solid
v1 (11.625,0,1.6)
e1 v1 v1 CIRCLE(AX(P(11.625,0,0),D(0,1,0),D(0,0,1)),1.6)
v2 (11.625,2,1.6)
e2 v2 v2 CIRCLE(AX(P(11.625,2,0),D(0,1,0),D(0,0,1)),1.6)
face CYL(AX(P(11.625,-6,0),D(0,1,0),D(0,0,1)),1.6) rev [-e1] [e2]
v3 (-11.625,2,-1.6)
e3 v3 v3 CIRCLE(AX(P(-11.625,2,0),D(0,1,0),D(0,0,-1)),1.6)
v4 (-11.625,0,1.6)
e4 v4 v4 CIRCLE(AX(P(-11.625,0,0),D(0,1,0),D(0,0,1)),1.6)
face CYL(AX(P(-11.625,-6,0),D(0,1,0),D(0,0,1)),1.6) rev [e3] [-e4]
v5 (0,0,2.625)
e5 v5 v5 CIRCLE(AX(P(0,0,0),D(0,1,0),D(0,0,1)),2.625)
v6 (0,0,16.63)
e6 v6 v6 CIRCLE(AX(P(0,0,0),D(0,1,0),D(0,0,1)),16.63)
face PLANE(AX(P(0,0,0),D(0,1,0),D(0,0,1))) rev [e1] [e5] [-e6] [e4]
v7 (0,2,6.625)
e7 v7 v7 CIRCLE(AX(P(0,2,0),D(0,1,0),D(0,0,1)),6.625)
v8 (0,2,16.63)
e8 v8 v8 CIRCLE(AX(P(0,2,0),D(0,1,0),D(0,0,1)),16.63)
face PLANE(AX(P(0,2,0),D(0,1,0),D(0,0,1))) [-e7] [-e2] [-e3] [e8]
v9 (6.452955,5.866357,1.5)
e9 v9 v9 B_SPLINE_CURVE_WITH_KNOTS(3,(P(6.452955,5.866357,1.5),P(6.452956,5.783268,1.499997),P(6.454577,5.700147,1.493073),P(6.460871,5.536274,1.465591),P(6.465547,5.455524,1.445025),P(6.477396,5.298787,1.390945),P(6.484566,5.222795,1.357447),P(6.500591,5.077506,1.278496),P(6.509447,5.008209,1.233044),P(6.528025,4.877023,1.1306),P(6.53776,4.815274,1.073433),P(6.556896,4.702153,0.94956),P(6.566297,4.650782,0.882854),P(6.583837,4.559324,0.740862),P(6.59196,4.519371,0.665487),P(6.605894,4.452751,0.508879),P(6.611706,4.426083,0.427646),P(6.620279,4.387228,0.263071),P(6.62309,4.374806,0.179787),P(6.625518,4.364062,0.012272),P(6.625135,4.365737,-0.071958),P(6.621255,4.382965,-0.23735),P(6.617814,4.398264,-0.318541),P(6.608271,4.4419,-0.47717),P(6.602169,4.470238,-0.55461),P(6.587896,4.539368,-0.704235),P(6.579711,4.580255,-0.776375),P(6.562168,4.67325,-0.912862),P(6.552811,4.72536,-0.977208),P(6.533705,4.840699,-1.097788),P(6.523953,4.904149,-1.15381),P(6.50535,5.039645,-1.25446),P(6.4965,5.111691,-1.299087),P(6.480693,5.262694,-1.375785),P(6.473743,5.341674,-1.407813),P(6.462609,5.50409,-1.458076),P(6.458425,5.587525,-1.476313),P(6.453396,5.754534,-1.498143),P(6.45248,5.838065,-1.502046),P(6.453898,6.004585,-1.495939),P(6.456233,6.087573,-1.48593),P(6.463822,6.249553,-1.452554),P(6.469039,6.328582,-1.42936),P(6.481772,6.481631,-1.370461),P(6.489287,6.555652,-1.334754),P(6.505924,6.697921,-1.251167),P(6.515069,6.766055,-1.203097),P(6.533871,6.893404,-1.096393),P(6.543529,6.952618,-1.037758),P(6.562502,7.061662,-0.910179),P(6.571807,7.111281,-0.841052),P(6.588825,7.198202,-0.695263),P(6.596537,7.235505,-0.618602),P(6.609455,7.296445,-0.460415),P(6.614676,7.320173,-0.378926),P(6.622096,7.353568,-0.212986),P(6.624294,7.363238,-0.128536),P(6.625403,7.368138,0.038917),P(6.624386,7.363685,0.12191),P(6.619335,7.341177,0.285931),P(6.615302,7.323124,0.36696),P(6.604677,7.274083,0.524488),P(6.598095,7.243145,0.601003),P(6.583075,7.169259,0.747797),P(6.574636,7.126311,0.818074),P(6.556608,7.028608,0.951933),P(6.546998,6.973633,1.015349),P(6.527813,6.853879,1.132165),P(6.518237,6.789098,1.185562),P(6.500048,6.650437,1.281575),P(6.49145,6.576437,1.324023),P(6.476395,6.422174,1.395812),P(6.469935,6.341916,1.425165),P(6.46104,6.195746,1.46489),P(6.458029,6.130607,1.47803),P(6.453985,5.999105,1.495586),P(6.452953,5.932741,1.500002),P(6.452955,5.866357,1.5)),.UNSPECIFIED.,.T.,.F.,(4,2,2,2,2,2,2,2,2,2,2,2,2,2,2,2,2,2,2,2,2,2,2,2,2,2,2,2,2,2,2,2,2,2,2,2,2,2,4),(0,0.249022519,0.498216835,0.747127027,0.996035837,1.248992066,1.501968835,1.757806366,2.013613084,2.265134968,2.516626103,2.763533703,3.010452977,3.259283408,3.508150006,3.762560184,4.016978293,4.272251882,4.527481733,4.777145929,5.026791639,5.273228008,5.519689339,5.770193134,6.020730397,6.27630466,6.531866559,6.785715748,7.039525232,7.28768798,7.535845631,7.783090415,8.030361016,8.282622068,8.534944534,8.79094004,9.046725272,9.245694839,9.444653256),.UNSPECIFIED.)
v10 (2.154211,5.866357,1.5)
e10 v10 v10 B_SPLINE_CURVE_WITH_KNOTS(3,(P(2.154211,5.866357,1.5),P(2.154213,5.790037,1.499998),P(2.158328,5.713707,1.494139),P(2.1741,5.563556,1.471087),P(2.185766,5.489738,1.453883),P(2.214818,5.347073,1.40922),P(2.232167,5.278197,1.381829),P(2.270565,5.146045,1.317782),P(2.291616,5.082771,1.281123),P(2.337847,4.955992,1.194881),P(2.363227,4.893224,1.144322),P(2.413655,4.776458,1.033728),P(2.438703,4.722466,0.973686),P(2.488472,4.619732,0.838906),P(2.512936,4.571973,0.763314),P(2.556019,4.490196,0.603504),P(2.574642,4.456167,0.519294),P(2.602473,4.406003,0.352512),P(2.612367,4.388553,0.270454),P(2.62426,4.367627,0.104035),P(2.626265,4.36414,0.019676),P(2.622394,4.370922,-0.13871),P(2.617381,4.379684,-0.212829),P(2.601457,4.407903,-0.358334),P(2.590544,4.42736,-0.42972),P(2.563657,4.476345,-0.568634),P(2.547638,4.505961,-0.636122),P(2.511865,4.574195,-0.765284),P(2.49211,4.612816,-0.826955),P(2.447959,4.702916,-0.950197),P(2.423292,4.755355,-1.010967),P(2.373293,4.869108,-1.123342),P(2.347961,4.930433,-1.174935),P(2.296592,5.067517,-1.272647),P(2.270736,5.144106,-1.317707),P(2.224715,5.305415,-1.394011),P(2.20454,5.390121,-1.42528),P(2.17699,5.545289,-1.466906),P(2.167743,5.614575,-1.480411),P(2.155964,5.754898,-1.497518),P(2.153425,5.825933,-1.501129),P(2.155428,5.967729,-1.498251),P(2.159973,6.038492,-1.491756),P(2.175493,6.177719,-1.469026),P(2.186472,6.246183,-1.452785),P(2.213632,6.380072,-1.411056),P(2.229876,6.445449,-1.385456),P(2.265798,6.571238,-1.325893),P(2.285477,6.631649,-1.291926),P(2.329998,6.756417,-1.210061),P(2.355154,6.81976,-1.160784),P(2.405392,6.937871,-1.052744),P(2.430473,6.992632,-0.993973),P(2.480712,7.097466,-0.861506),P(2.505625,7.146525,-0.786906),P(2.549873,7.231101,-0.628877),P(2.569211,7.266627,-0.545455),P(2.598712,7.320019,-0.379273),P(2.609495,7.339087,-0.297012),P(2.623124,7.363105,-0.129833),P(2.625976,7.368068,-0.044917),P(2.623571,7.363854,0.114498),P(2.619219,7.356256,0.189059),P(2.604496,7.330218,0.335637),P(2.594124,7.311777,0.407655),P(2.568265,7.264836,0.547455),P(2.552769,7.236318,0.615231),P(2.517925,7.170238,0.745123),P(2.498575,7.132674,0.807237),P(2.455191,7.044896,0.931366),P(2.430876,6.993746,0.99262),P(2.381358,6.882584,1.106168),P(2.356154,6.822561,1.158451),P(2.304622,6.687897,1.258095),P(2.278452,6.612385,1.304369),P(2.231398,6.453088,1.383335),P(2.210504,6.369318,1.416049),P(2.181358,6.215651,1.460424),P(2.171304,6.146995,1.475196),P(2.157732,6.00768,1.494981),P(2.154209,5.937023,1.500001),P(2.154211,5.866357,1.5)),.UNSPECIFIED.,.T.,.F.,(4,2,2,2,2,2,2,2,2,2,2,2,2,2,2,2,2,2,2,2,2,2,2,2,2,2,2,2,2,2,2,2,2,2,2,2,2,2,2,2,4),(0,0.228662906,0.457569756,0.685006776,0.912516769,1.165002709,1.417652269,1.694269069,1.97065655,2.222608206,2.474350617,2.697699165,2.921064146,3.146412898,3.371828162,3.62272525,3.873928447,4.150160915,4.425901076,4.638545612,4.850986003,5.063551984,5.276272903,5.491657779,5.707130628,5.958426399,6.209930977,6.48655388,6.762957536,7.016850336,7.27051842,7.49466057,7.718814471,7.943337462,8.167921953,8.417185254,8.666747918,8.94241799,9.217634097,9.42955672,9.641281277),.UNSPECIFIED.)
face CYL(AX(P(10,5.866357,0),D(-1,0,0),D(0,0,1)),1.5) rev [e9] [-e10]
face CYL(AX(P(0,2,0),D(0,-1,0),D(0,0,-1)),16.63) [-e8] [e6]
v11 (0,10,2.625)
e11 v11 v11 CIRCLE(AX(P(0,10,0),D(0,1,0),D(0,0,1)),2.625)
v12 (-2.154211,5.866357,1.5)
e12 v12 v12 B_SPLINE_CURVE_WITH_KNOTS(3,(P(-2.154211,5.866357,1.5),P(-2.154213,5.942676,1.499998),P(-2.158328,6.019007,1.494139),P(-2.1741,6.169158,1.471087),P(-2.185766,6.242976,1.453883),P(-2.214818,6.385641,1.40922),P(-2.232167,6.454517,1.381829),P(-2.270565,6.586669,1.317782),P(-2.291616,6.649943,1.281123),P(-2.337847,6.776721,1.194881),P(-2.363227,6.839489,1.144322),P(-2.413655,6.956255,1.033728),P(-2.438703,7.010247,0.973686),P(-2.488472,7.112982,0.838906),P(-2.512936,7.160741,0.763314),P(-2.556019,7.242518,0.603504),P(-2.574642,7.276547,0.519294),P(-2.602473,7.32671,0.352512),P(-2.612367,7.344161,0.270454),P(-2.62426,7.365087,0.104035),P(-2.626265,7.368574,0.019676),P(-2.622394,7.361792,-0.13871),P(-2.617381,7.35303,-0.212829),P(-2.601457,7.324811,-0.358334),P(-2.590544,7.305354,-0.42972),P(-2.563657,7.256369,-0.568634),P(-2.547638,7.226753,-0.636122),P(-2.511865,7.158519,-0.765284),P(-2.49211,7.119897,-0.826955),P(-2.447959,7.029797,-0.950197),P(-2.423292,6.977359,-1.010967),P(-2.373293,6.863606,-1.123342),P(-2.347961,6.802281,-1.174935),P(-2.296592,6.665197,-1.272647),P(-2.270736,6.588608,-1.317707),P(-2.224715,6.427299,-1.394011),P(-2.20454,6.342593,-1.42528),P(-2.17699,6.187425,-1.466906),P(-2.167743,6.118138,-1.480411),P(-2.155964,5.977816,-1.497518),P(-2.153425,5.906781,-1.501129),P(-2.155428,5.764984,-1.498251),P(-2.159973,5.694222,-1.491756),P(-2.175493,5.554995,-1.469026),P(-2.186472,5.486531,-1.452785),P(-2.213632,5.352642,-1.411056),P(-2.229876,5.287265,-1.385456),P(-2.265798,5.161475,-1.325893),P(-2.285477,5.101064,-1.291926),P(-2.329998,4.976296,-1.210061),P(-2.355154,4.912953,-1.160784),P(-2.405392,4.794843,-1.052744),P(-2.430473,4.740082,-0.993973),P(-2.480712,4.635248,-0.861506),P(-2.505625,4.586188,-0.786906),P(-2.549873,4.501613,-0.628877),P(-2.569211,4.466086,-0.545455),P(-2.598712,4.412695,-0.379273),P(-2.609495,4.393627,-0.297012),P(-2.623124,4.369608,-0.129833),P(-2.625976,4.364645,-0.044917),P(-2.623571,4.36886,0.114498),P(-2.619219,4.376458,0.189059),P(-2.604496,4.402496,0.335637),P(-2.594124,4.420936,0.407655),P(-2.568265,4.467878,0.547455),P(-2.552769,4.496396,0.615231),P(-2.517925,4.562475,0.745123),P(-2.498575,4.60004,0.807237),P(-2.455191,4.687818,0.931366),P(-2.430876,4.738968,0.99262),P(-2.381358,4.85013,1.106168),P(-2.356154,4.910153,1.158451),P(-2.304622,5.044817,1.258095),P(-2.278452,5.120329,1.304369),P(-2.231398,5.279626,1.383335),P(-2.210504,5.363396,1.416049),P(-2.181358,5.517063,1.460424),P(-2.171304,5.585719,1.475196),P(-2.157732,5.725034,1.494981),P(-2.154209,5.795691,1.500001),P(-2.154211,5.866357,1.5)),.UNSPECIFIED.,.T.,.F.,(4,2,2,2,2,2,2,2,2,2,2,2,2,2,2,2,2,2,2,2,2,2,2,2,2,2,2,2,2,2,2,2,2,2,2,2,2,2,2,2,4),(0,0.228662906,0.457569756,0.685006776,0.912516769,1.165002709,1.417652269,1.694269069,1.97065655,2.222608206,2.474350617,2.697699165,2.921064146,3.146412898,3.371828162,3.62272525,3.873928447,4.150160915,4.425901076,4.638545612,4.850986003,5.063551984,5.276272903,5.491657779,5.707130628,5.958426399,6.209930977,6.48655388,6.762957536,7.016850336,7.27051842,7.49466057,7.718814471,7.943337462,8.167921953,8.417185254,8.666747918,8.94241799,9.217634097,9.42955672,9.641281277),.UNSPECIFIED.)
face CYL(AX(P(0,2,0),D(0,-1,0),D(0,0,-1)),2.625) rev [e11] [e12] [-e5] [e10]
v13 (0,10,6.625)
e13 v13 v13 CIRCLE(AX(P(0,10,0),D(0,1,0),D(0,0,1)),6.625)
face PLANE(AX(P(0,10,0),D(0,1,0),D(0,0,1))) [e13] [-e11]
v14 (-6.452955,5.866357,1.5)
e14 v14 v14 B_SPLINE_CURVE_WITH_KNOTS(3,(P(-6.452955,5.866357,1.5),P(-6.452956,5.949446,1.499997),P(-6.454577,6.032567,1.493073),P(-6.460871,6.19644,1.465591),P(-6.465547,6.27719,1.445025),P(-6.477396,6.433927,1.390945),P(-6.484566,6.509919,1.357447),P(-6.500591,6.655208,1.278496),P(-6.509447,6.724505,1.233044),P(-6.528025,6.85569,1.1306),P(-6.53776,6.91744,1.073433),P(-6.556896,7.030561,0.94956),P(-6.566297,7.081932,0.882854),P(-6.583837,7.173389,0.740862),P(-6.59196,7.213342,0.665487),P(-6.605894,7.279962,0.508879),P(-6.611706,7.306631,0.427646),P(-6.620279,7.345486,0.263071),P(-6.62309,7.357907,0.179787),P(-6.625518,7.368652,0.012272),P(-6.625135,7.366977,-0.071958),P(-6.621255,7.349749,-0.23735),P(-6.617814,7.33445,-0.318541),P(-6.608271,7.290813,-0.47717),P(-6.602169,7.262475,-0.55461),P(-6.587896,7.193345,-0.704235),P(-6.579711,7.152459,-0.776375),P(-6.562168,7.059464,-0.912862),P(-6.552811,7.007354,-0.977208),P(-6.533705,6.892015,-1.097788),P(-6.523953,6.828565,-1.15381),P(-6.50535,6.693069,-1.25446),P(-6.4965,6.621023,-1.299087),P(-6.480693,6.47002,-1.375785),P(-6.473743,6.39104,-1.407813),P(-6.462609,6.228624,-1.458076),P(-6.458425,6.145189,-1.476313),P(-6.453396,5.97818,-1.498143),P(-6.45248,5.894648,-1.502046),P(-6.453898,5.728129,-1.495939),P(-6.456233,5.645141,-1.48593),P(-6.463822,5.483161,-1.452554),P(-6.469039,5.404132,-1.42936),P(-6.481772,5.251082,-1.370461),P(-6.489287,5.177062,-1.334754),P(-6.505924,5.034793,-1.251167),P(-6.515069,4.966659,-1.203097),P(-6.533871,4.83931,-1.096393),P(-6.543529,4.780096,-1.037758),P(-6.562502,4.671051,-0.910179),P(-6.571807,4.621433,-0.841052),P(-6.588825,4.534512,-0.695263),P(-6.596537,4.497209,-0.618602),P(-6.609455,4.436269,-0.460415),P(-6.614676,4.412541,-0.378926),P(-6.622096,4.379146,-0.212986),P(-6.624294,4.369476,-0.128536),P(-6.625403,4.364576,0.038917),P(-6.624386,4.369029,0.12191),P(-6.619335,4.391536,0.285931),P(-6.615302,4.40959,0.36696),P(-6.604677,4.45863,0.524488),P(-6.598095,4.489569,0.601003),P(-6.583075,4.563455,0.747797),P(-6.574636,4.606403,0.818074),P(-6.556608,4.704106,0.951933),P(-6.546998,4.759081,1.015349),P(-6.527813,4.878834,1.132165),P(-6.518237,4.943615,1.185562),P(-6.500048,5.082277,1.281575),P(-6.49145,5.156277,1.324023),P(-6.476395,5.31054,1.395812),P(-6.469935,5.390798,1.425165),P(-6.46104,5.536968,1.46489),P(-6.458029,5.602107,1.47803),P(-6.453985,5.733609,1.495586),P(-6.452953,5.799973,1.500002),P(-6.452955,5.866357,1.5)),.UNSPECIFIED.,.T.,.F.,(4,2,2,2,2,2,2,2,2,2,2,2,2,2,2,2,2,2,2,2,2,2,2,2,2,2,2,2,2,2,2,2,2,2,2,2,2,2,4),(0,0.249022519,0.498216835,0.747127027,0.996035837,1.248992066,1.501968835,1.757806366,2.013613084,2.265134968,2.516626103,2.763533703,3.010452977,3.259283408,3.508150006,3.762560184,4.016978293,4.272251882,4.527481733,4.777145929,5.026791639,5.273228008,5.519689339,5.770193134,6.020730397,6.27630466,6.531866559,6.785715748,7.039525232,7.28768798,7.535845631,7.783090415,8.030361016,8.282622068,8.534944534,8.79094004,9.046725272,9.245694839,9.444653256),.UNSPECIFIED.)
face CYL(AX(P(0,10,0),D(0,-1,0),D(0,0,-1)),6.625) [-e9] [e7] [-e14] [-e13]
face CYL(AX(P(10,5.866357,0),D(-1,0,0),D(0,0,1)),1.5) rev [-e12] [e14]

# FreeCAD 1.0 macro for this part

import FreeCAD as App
import Part
import Sketcher
from FreeCAD import Vector
Q = App.Units.Quantity

doc = App.newDocument("Part")
body = doc.addObject("PartDesign::Body", "Body")

# Sketch on XZ plane
sketch1 = doc.addObject("Sketcher::SketchObject", "Sketch")
body.addObject(sketch1)
sketch1.AttachmentSupport = (doc.XZ_Plane, [""])
sketch1.MapMode = "FlatFace"
sketch1.addGeometry(Part.Circle(Vector(0, 0, 0), Vector(0, 0, 1), 16.63), False)
sketch1.addGeometry(Part.Circle(Vector(0, 0, 0), Vector(0, 0, 1), 2.625), False)
sketch1.addConstraint(Sketcher.Constraint("Coincident", 0, 3, -1, 1))
sketch1.addConstraint(Sketcher.Constraint("Coincident", 1, 3, -1, 1))
sketch1.addConstraint(Sketcher.Constraint("Diameter", 0, Q("33.26 mm")))
sketch1.addConstraint(Sketcher.Constraint("Diameter", 1, Q("5.25 mm")))
pad1 = doc.addObject("PartDesign::Pad", "Pad")
body.addObject(pad1)
pad1.Profile = sketch1
pad1.Length = 2
pad1.Reversed = True

# Sketch on XZ plane
sketch2 = doc.addObject("Sketcher::SketchObject", "Sketch001")
body.addObject(sketch2)
sketch2.AttachmentSupport = (doc.XZ_Plane, [""])
sketch2.MapMode = "FlatFace"
sketch2.AttachmentOffset = App.Placement(Vector(0, 0, -2), App.Rotation())
sketch2.addGeometry(Part.Circle(Vector(0, 0, 0), Vector(0, 0, 1), 6.625), False)
sketch2.addGeometry(Part.Circle(Vector(0, 0, 0), Vector(0, 0, 1), 2.625), False)
sketch2.addConstraint(Sketcher.Constraint("Coincident", 0, 3, -1, 1))
sketch2.addConstraint(Sketcher.Constraint("Coincident", 1, 3, -1, 1))
sketch2.addConstraint(Sketcher.Constraint("Diameter", 0, Q("13.25 mm")))
sketch2.addConstraint(Sketcher.Constraint("Diameter", 1, Q("5.25 mm")))
pad2 = doc.addObject("PartDesign::Pad", "Pad001")
body.addObject(pad2)
pad2.Profile = sketch2
pad2.Length = 8
pad2.Reversed = True

# Sketch on XZ plane
sketch3 = doc.addObject("Sketcher::SketchObject", "Sketch002")
body.addObject(sketch3)
sketch3.AttachmentSupport = (doc.XZ_Plane, [""])
sketch3.MapMode = "FlatFace"
sketch3.AttachmentOffset = App.Placement(Vector(0, 0, -2), App.Rotation())
sketch3.addGeometry(Part.Circle(Vector(11.625, 0, 0), Vector(0, 0, 1), 1.6), False)
sketch3.addConstraint(Sketcher.Constraint("PointOnObject", 0, 3, -1))
sketch3.addConstraint(Sketcher.Constraint("Diameter", 0, Q("3.2 mm")))
sketch3.addConstraint(Sketcher.Constraint("DistanceX", -1, 1, 0, 3, Q("11.625 mm")))
pocket1 = doc.addObject("PartDesign::Pocket", "Pocket")
body.addObject(pocket1)
pocket1.Profile = sketch3
pocket1.Length = 8
pocket1.Reversed = True
doc.recompute()

polarpattern = doc.addObject("PartDesign::PolarPattern", "PolarPattern")
body.addObject(polarpattern)
polarpattern.Originals = [pocket1]
polarpattern.Axis = (doc.Y_Axis, [""])
polarpattern.Angle = 360
polarpattern.Occurrences = 2
body.Tip = polarpattern

# Sketch on YZ plane
sketch4 = doc.addObject("Sketcher::SketchObject", "Sketch003")
body.addObject(sketch4)
sketch4.AttachmentSupport = (doc.YZ_Plane, [""])
sketch4.MapMode = "FlatFace"
sketch4.addGeometry(Part.Circle(Vector(5.866357, 0, 0), Vector(0, 0, 1), 1.5), False)
sketch4.addConstraint(Sketcher.Constraint("PointOnObject", 0, 3, -1))
sketch4.addConstraint(Sketcher.Constraint("Diameter", 0, Q("3 mm")))
sketch4.addConstraint(Sketcher.Constraint("DistanceX", -1, 1, 0, 3, Q("5.866357 mm")))
pocket2 = doc.addObject("PartDesign::Pocket", "Pocket001")
body.addObject(pocket2)
pocket2.Profile = sketch4
pocket2.Type = "ThroughAll"
pocket2.Midplane = True

doc.recompute()
